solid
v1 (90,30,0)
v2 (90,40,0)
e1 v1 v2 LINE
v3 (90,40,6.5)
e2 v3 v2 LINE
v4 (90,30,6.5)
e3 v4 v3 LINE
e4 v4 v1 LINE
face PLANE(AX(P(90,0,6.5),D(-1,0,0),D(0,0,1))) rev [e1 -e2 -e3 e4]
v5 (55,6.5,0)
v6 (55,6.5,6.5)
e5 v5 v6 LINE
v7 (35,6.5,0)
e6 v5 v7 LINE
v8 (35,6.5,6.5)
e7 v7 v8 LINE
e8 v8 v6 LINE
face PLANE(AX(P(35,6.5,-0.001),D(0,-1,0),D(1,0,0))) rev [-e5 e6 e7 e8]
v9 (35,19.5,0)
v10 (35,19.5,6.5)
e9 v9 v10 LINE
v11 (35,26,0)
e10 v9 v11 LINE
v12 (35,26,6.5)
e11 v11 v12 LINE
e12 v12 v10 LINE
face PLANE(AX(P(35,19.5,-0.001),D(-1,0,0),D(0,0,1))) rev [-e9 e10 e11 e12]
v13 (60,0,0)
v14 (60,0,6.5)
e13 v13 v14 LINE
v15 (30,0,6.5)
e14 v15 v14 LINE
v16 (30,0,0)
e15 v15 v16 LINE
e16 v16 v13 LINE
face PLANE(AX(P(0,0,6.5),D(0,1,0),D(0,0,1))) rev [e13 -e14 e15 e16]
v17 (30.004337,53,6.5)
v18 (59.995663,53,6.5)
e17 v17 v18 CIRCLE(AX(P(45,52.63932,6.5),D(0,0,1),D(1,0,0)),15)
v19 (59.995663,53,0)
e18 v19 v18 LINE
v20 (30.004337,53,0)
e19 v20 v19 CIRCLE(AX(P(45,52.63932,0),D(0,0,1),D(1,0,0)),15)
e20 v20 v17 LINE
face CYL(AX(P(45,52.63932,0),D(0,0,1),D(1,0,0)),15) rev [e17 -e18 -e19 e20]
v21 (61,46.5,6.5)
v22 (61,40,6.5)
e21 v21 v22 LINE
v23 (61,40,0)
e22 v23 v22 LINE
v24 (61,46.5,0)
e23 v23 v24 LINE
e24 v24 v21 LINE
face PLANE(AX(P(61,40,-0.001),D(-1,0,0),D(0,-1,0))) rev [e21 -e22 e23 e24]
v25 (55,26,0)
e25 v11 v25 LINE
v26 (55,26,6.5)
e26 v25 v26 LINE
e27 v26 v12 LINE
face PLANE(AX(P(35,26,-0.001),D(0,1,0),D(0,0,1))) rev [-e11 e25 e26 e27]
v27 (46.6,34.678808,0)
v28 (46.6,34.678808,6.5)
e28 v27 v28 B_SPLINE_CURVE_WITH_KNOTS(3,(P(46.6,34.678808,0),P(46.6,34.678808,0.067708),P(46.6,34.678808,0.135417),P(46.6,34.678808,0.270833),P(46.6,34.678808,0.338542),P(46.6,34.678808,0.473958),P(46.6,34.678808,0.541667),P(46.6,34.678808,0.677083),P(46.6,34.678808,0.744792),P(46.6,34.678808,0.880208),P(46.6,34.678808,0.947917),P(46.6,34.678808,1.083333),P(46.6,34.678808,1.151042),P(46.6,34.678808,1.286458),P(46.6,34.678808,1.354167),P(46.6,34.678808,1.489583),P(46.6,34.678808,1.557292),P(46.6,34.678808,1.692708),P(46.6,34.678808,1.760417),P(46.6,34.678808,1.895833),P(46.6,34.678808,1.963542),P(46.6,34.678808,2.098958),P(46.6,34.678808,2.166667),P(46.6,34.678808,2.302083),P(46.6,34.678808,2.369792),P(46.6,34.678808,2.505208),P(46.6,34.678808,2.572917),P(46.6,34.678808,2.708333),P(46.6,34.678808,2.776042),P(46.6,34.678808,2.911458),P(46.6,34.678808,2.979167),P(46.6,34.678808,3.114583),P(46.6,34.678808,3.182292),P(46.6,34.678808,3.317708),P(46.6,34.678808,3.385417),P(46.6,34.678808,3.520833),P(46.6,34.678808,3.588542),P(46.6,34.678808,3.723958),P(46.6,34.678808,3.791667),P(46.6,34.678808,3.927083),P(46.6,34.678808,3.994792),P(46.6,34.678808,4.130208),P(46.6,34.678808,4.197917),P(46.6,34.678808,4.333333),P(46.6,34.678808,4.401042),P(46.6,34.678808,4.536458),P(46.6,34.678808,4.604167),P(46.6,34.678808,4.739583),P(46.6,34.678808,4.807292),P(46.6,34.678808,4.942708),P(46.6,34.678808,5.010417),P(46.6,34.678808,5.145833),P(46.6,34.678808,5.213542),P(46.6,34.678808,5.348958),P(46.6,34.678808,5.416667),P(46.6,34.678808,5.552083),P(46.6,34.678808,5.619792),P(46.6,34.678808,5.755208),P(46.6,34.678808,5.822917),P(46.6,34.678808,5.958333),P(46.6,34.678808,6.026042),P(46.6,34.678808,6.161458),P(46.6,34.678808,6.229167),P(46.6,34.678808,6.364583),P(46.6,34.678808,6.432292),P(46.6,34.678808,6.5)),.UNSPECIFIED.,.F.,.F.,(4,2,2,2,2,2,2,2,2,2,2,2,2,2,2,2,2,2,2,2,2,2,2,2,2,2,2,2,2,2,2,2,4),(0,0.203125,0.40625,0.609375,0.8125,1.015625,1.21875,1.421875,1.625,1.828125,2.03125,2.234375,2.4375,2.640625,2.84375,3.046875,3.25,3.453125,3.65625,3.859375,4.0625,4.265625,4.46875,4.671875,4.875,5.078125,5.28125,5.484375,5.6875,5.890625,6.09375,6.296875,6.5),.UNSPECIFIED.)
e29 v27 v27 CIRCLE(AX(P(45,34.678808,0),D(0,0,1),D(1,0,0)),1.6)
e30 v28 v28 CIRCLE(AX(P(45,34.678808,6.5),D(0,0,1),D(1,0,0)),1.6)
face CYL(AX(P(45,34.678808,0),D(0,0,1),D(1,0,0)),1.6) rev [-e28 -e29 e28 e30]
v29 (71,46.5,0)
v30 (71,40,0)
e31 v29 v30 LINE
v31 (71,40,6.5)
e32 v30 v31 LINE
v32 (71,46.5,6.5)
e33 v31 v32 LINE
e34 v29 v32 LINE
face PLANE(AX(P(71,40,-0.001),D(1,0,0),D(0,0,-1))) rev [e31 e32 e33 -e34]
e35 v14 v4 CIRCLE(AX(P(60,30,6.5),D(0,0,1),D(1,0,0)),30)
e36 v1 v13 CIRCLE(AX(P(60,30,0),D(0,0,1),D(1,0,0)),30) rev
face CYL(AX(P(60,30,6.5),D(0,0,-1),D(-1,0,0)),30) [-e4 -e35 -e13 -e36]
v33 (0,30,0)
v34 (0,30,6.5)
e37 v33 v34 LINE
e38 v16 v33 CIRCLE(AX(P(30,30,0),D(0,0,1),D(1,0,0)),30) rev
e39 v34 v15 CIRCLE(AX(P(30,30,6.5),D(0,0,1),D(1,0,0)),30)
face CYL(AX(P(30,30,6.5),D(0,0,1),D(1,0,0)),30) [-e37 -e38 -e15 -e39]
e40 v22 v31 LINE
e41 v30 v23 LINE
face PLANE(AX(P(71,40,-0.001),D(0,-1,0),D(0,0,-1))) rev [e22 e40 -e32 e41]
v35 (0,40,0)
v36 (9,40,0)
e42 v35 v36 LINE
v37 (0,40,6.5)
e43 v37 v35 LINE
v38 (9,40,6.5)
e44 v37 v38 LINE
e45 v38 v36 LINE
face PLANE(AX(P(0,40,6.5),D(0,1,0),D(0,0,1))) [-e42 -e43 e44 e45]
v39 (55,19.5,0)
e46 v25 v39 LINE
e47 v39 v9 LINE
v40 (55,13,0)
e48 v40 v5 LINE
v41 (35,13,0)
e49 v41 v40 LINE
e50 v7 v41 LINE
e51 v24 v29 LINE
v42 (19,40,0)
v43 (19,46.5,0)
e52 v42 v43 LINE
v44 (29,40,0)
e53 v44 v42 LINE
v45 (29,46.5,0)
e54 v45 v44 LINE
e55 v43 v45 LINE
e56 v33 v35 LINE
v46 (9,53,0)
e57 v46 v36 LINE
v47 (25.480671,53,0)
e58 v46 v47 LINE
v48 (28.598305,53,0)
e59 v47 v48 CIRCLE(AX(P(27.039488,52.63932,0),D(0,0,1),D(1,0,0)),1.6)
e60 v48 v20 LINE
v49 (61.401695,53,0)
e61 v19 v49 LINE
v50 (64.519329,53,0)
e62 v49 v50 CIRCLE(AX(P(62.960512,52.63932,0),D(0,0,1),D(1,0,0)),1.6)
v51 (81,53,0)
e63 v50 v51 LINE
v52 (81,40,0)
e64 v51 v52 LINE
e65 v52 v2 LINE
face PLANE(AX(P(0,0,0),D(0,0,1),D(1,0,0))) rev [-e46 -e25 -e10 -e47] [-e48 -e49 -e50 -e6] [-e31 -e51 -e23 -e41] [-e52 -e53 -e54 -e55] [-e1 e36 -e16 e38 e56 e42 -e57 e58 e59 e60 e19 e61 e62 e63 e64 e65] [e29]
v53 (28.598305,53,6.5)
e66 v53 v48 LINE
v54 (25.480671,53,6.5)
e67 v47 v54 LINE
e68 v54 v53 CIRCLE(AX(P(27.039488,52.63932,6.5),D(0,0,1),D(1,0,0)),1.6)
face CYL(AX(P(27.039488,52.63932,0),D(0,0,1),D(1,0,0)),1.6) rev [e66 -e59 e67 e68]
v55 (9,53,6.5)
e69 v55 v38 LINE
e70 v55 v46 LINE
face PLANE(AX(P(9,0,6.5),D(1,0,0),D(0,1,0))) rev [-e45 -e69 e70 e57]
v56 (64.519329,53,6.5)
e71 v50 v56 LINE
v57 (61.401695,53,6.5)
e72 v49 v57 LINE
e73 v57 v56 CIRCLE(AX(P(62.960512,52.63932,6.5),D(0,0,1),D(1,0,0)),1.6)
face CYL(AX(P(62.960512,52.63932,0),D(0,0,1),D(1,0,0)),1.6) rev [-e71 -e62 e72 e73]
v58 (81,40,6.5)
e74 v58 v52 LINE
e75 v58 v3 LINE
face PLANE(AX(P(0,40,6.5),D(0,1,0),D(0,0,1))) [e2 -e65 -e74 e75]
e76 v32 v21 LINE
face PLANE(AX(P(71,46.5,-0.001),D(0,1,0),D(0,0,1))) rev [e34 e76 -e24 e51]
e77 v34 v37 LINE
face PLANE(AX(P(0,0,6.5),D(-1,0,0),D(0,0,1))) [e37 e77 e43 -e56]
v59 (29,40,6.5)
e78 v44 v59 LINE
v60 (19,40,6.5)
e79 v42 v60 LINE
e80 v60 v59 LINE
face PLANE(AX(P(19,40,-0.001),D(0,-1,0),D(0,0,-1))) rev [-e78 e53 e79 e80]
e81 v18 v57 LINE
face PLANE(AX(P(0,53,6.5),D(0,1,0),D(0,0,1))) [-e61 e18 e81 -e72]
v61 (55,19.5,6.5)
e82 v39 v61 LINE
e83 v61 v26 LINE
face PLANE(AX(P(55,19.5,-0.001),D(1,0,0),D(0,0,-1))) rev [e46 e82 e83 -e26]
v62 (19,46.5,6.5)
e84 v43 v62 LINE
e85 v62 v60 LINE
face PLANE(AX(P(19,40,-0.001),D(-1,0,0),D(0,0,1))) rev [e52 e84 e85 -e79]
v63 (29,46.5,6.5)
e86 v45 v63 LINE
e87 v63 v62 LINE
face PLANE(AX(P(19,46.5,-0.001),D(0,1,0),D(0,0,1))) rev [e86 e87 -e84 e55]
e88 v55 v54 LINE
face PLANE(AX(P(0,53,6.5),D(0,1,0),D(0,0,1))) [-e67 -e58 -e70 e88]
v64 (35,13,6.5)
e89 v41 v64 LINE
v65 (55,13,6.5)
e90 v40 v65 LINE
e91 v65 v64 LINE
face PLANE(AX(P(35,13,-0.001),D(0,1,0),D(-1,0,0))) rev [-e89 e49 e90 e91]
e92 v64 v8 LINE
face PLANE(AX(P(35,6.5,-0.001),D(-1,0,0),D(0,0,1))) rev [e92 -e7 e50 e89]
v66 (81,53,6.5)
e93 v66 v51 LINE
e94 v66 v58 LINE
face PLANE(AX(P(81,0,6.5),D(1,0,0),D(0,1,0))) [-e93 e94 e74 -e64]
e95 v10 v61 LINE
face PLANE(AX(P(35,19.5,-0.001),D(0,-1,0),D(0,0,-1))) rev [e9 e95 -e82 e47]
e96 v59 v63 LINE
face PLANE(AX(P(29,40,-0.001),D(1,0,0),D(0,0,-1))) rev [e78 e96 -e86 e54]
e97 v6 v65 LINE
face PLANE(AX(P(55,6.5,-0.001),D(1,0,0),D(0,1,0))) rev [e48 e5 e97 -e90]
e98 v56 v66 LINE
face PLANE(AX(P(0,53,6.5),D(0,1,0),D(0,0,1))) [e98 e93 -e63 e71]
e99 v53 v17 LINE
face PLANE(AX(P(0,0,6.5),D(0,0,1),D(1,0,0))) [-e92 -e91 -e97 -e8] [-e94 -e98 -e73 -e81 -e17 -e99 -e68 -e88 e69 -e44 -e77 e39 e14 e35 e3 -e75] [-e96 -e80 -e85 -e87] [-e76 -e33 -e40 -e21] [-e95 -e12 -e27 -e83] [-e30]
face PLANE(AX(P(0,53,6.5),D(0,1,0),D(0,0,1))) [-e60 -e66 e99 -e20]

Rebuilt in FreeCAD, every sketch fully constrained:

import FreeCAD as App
import Part
import Sketcher
from FreeCAD import Vector
Q = App.Units.Quantity


def edges_at(feature, points):
    """Names of the edges that pass closest to the given points."""
    edges = feature.Shape.Edges
    near = lambda p: min(range(len(edges)), key=lambda i: edges[i].distToShape(Part.Vertex(*p))[0])
    return sorted({f"Edge{near(p) + 1}" for p in points})


def add_polygon(sketch, points):
    """Adds a closed chain of lines whose ends are joined by coincident constraints."""
    first, n = sketch.GeometryCount, len(points)
    for a, b in zip(points, points[1:] + points[:1]):
        sketch.addGeometry(Part.LineSegment(App.Vector(*a, 0), App.Vector(*b, 0)), False)
    for i in range(n):
        sketch.addConstraint(Sketcher.Constraint("Coincident", first + i, 2, first + (i + 1) % n, 1))

doc = App.newDocument("Part")
body = doc.addObject("PartDesign::Body", "Body")

sketch1 = body.newObject("Sketcher::SketchObject", "Sketch")
sketch1.AttachmentSupport = (doc.getObject("XY_Plane"), [""])
sketch1.MapMode = "FlatFace"
add_polygon(sketch1, [(9, 53), (9, 40), (0, 40), (0, 0), (90, 0), (90, 40), (81, 40), (81, 53)])
sketch1.addConstraint(Sketcher.Constraint("Vertical", 0))
sketch1.addConstraint(Sketcher.Constraint("Horizontal", 1))
sketch1.addConstraint(Sketcher.Constraint("Vertical", 2))
sketch1.addConstraint(Sketcher.Constraint("Horizontal", 3))
sketch1.addConstraint(Sketcher.Constraint("Vertical", 4))
sketch1.addConstraint(Sketcher.Constraint("Horizontal", 5))
sketch1.addConstraint(Sketcher.Constraint("Vertical", 6))
sketch1.addConstraint(Sketcher.Constraint("Horizontal", 7))
sketch1.addConstraint(Sketcher.Constraint("Coincident", 2, 2, -1, 1))
sketch1.addConstraint(Sketcher.Constraint("Horizontal", 1, 2, 4, 2))
sketch1.addConstraint(Sketcher.Constraint("Equal", 1, 5))
sketch1.addConstraint(Sketcher.Constraint("DistanceX", 1, 2, 1, 1, Q("9 mm")))
sketch1.addConstraint(Sketcher.Constraint("DistanceX", 3, 1, 3, 2, Q("90 mm")))
sketch1.addConstraint(Sketcher.Constraint("DistanceY", 0, 2, 0, 1, Q("13 mm")))
sketch1.addConstraint(Sketcher.Constraint("DistanceY", 2, 2, 2, 1, Q("40 mm")))
pad1 = body.newObject("PartDesign::Pad", "Pad")
pad1.Profile = sketch1
pad1.Length = 6.5
doc.recompute()

fillet = body.newObject("PartDesign::Fillet", "Fillet")
fillet.Base = (pad1, edges_at(pad1, [(90, 0, 3.25), (0, 0, 3.25)]))
fillet.Radius = 30

sketch2 = body.newObject("Sketcher::SketchObject", "Sketch001")
sketch2.AttachmentSupport = (doc.getObject("XY_Plane"), [""])
sketch2.MapMode = "FlatFace"
sketch2.AttachmentOffset = App.Placement(Vector(0, 0, 6.5), App.Rotation())
sketch2.addGeometry(Part.Circle(Vector(45, 52.6, 0), Vector(0, 0, 1), 15), False)
sketch2.addGeometry(Part.Circle(Vector(63, 52.6, 0), Vector(0, 0, 1), 1.6), False)
sketch2.addGeometry(Part.Circle(Vector(45, 34.7, 0), Vector(0, 0, 1), 1.6), False)
sketch2.addGeometry(Part.Circle(Vector(27, 52.6, 0), Vector(0, 0, 1), 1.6), False)
sketch2.addConstraint(Sketcher.Constraint("Equal", 1, 2))
sketch2.addConstraint(Sketcher.Constraint("Equal", 2, 3))
sketch2.addConstraint(Sketcher.Constraint("Horizontal", 0, 3, 1, 3))
sketch2.addConstraint(Sketcher.Constraint("Horizontal", 1, 3, 3, 3))
sketch2.addConstraint(Sketcher.Constraint("Vertical", 0, 3, 2, 3))
sketch2.addConstraint(Sketcher.Constraint("Diameter", 0, Q("30 mm")))
sketch2.addConstraint(Sketcher.Constraint("Diameter", 1, Q("3.2 mm")))
sketch2.addConstraint(Sketcher.Constraint("DistanceX", -1, 1, 0, 3, Q("45 mm")))
sketch2.addConstraint(Sketcher.Constraint("DistanceY", -1, 1, 0, 3, Q("52.63932 mm")))
sketch2.addConstraint(Sketcher.Constraint("DistanceX", -1, 1, 1, 3, Q("62.960512 mm")))
sketch2.addConstraint(Sketcher.Constraint("DistanceY", -1, 1, 2, 3, Q("34.678808 mm")))
sketch2.addConstraint(Sketcher.Constraint("DistanceX", -1, 1, 3, 3, Q("27.039488 mm")))
pocket1 = body.newObject("PartDesign::Pocket", "Pocket")
pocket1.Profile = sketch2
pocket1.Type = "ThroughAll"

sketch3 = body.newObject("Sketcher::SketchObject", "Sketch002")
sketch3.AttachmentSupport = (doc.getObject("XY_Plane"), [""])
sketch3.MapMode = "FlatFace"
sketch3.AttachmentOffset = App.Placement(Vector(0, 0, 6.5), App.Rotation())
add_polygon(sketch3, [(19, 46), (19, 40), (29, 40), (29, 46)])
sketch3.addConstraint(Sketcher.Constraint("Vertical", 0))
sketch3.addConstraint(Sketcher.Constraint("Horizontal", 1))
sketch3.addConstraint(Sketcher.Constraint("Vertical", 2))
sketch3.addConstraint(Sketcher.Constraint("Horizontal", 3))
sketch3.addConstraint(Sketcher.Constraint("DistanceX", 1, 1, 1, 2, Q("10 mm")))
sketch3.addConstraint(Sketcher.Constraint("DistanceY", 0, 2, 0, 1, Q("6.5 mm")))
sketch3.addConstraint(Sketcher.Constraint("DistanceX", -1, 1, 0, 2, Q("19 mm")))
sketch3.addConstraint(Sketcher.Constraint("DistanceY", -1, 1, 0, 2, Q("40 mm")))
pocket2 = body.newObject("PartDesign::Pocket", "Pocket001")
pocket2.Profile = sketch3
pocket2.Type = "UpToFirst"

sketch4 = body.newObject("Sketcher::SketchObject", "Sketch003")
sketch4.AttachmentSupport = (doc.getObject("XY_Plane"), [""])
sketch4.MapMode = "FlatFace"
sketch4.AttachmentOffset = App.Placement(Vector(0, 0, 6.5), App.Rotation())
add_polygon(sketch4, [(61, 46), (61, 40), (71, 40), (71, 46)])
sketch4.addConstraint(Sketcher.Constraint("Vertical", 0))
sketch4.addConstraint(Sketcher.Constraint("Horizontal", 1))
sketch4.addConstraint(Sketcher.Constraint("Vertical", 2))
sketch4.addConstraint(Sketcher.Constraint("Horizontal", 3))
sketch4.addConstraint(Sketcher.Constraint("DistanceX", 1, 1, 1, 2, Q("10 mm")))
sketch4.addConstraint(Sketcher.Constraint("DistanceY", 0, 2, 0, 1, Q("6.5 mm")))
sketch4.addConstraint(Sketcher.Constraint("DistanceX", -1, 1, 0, 2, Q("61 mm")))
sketch4.addConstraint(Sketcher.Constraint("DistanceY", -1, 1, 0, 2, Q("40 mm")))
pocket3 = body.newObject("PartDesign::Pocket", "Pocket002")
pocket3.Profile = sketch4
pocket3.Type = "UpToFirst"

sketch5 = body.newObject("Sketcher::SketchObject", "Sketch004")
sketch5.AttachmentSupport = (doc.getObject("XY_Plane"), [""])
sketch5.MapMode = "FlatFace"
sketch5.AttachmentOffset = App.Placement(Vector(0, 0, 6.5), App.Rotation())
add_polygon(sketch5, [(35, 26), (35, 20), (55, 20), (55, 26)])
sketch5.addConstraint(Sketcher.Constraint("Vertical", 0))
sketch5.addConstraint(Sketcher.Constraint("Horizontal", 1))
sketch5.addConstraint(Sketcher.Constraint("Vertical", 2))
sketch5.addConstraint(Sketcher.Constraint("Horizontal", 3))
sketch5.addConstraint(Sketcher.Constraint("DistanceX", 1, 1, 1, 2, Q("20 mm")))
sketch5.addConstraint(Sketcher.Constraint("DistanceY", 0, 2, 0, 1, Q("6.5 mm")))
sketch5.addConstraint(Sketcher.Constraint("DistanceX", -1, 1, 0, 2, Q("35 mm")))
sketch5.addConstraint(Sketcher.Constraint("DistanceY", -1, 1, 2, 2, Q("26 mm")))
pocket4 = body.newObject("PartDesign::Pocket", "Pocket003")
pocket4.Profile = sketch5
pocket4.Type = "UpToFirst"

sketch6 = body.newObject("Sketcher::SketchObject", "Sketch005")
sketch6.AttachmentSupport = (doc.getObject("XY_Plane"), [""])
sketch6.MapMode = "FlatFace"
sketch6.AttachmentOffset = App.Placement(Vector(0, 0, 6.5), App.Rotation())
add_polygon(sketch6, [(35, 13), (35, 6), (55, 6), (55, 13)])
sketch6.addConstraint(Sketcher.Constraint("Vertical", 0))
sketch6.addConstraint(Sketcher.Constraint("Horizontal", 1))
sketch6.addConstraint(Sketcher.Constraint("Vertical", 2))
sketch6.addConstraint(Sketcher.Constraint("Horizontal", 3))
sketch6.addConstraint(Sketcher.Constraint("DistanceX", 1, 1, 1, 2, Q("20 mm")))
sketch6.addConstraint(Sketcher.Constraint("DistanceY", 0, 2, 0, 1, Q("6.5 mm")))
sketch6.addConstraint(Sketcher.Constraint("DistanceX", -1, 1, 0, 2, Q("35 mm")))
sketch6.addConstraint(Sketcher.Constraint("DistanceY", -1, 1, 2, 2, Q("13 mm")))
pocket5 = body.newObject("PartDesign::Pocket", "Pocket004")
pocket5.Profile = sketch6
pocket5.Type = "UpToFirst"

doc.recompute()
